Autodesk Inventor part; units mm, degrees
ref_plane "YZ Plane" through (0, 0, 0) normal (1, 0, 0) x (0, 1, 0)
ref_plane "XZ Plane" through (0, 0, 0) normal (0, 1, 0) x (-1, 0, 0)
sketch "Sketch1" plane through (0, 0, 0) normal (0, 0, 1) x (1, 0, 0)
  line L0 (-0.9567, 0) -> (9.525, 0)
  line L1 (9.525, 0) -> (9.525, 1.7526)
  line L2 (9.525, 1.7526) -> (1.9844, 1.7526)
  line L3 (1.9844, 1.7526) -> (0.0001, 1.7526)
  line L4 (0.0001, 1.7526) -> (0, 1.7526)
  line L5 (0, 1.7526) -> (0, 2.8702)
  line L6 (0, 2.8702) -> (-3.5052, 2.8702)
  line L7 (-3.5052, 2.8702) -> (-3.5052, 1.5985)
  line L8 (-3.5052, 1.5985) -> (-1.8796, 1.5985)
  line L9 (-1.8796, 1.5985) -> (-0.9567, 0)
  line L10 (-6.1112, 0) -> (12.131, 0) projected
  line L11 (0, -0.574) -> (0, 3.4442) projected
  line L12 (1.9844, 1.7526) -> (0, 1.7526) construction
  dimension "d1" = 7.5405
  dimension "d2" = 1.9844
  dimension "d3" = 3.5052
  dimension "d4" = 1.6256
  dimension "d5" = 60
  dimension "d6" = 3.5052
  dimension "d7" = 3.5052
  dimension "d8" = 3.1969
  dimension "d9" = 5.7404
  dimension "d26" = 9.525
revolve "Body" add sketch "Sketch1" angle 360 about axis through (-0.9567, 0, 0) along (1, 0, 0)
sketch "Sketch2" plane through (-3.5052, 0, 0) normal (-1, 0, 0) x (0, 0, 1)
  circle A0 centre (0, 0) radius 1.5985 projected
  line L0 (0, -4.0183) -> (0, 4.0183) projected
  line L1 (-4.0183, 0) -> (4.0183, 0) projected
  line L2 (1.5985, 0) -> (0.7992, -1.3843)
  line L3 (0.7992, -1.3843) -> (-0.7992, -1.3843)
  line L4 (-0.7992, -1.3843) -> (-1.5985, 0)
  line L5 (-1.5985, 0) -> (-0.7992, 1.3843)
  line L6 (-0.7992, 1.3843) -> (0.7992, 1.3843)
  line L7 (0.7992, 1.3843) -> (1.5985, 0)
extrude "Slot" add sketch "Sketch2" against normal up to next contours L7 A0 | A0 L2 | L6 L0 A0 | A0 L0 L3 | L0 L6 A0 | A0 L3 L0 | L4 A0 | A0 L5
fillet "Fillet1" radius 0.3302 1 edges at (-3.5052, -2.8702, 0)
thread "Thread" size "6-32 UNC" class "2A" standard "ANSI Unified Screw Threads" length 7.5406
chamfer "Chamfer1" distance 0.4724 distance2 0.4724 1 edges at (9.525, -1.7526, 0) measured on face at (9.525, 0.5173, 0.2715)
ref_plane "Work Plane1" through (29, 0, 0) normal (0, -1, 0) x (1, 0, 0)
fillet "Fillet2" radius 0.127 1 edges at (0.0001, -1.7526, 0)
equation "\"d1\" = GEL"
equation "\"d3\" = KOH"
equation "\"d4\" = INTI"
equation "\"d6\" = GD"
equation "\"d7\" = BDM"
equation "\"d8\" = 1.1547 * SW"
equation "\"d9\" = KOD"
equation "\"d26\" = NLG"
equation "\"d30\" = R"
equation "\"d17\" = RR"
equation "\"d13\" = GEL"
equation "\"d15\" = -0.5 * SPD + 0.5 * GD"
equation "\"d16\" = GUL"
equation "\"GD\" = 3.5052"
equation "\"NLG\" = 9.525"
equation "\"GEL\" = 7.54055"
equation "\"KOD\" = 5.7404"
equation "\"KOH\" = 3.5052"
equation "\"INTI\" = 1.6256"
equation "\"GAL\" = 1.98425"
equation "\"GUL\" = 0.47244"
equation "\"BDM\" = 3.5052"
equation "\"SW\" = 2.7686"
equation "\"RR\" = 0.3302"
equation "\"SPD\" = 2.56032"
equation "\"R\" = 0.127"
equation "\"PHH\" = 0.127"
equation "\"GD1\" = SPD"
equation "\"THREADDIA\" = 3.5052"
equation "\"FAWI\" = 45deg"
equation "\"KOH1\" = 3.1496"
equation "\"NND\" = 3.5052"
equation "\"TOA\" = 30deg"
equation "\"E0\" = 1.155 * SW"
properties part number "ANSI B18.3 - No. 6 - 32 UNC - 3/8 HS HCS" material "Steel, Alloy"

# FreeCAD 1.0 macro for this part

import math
import FreeCAD as App
import Part
import Sketcher

V = App.Vector
Q = App.Units.Quantity


def edges_at(feature, points):
    """Names of the edges that pass closest to the given points."""
    edges = feature.Shape.Edges
    near = lambda p: min(range(len(edges)), key=lambda i: edges[i].distToShape(Part.Vertex(*p))[0])
    return sorted({f"Edge{near(p) + 1}" for p in points})


def add_polygon(sketch, points):
    """Adds a closed chain of lines whose ends are joined by coincident constraints."""
    first, n = sketch.GeometryCount, len(points)
    for a, b in zip(points, points[1:] + points[:1]):
        sketch.addGeometry(Part.LineSegment(App.Vector(*a, 0), App.Vector(*b, 0)), False)
    for i in range(n):
        sketch.addConstraint(Sketcher.Constraint("Coincident", first + i, 2, first + (i + 1) % n, 1))

doc = App.newDocument("Part")
params = doc.addObject("Spreadsheet::Sheet", "Params")
for row, (alias, value) in enumerate([
    ("sketch1_width", "0.375 in"),
    ("sketch1_width2", "0.138 in"),
    ("sketch1_width3", "0.064 in"),
    ("sketch1_height", "0.069 in"),
    ("sketch1_height2", "0.044 in"),
    ("revolution_angle", "360 deg"),
    ("pad1_length", "1.7493 mm"),
    ("fillet_radius", "0.013 in"),
    ("chamfer_size", "0.0185984 in"),
    ("chamfer_size2", "0.0185984 in"),
    ("fillet2_radius", "0.005 in"),
], start=1):
    params.set(f"A{row}", alias)
    params.set(f"B{row}", "=" + value)
    params.setAlias(f"B{row}", alias)

body = doc.addObject("PartDesign::Body", "Body")

sketch1 = body.newObject("Sketcher::SketchObject", "Sketch")
sketch1.AttachmentSupport = (doc.getObject("XY_Plane"), [""])
sketch1.MapMode = "FlatFace"
add_polygon(sketch1, [(-1.9, 1.6), (-1, 0), (9.5, 0), (9.5, 1.8), (0, 1.8), (0, 2.9), (-3.5, 2.9), (-3.5, 1.6)])
sketch1.addConstraint(Sketcher.Constraint("Horizontal", 1))
sketch1.addConstraint(Sketcher.Constraint("Vertical", 2))
sketch1.addConstraint(Sketcher.Constraint("Horizontal", 3))
sketch1.addConstraint(Sketcher.Constraint("Vertical", 4))
sketch1.addConstraint(Sketcher.Constraint("Horizontal", 5))
sketch1.addConstraint(Sketcher.Constraint("Vertical", 6))
sketch1.addConstraint(Sketcher.Constraint("Horizontal", 7))
sketch1.addConstraint(Sketcher.Constraint("PointOnObject", 0, 2, -1))
sketch1.addConstraint(Sketcher.Constraint("PointOnObject", 3, 2, -2))
sketch1.addConstraint(Sketcher.Constraint("Angle", 0, Q("-59.9998 deg")))
sketch1.addConstraint(Sketcher.Constraint("DistanceX", 3, 2, 3, 1, Q("0.375 in")))
sketch1.addConstraint(Sketcher.Constraint("DistanceX", 5, 2, 5, 1, Q("0.138 in")))
sketch1.addConstraint(Sketcher.Constraint("DistanceX", 7, 1, 7, 2, Q("0.064 in")))
sketch1.addConstraint(Sketcher.Constraint("DistanceY", 2, 1, 2, 2, Q("0.069 in")))
sketch1.addConstraint(Sketcher.Constraint("DistanceY", 4, 1, 4, 2, Q("0.044 in")))
sketch1.addConstraint(Sketcher.Constraint("DistanceX", 1, 1, 1, 2, 10.4817))
sketch1.setExpression("Constraints[18]", "Params.sketch1_width")
sketch1.setExpression("Constraints[19]", "Params.sketch1_width2")
sketch1.setExpression("Constraints[20]", "Params.sketch1_width3")
sketch1.setExpression("Constraints[21]", "Params.sketch1_height")
sketch1.setExpression("Constraints[22]", "Params.sketch1_height2")
revolution = body.newObject("PartDesign::Revolution", "Revolution")
revolution.Profile = sketch1
revolution.ReferenceAxis = (sketch1, ["H_Axis"])
revolution.setExpression("Angle", "Params.revolution_angle")

sketch2 = body.newObject("Sketcher::SketchObject", "Sketch001")
sketch2.AttachmentSupport = (doc.getObject("YZ_Plane"), [""])
sketch2.MapMode = "FlatFace"
sketch2.AttachmentOffset = App.Placement(V(0, 0, -0.138 * 25.4), App.Rotation())
sketch2.addGeometry(Part.LineSegment(V(1.4, 0.8, 0), V(0, 1.6, 0)), False)
sketch2.addGeometry(Part.ArcOfCircle(Part.Circle(V(0, 0, 0), V(0, 0, 1), 1.6), math.radians(30), math.radians(90)), False)
sketch2.addGeometry(Part.ArcOfCircle(Part.Circle(V(0, 0, 0), V(0, 0, 1), 1.6), math.radians(90), math.radians(150)), False)
sketch2.addGeometry(Part.LineSegment(V(0, 1.6, 0), V(-1.4, 0.8, 0)), False)
sketch2.addGeometry(Part.ArcOfCircle(Part.Circle(V(0, 0, 0), V(0, 0, 1), 1.6), math.radians(-30), math.radians(30)), False)
sketch2.addGeometry(Part.LineSegment(V(1.4, 0.8, 0), V(1.4, -0.8, 0)), False)
sketch2.addGeometry(Part.LineSegment(V(-1.4, 0.8, 0), V(-1.4, -0.8, 0)), False)
sketch2.addGeometry(Part.ArcOfCircle(Part.Circle(V(0, 0, 0), V(0, 0, 1), 1.6), math.radians(150), math.radians(210)), False)
sketch2.addGeometry(Part.LineSegment(V(-1.4, -0.8, 0), V(0, -1.6, 0)), False)
sketch2.addGeometry(Part.ArcOfCircle(Part.Circle(V(0, 0, 0), V(0, 0, 1), 1.6), math.radians(-150), math.radians(-90)), False)
sketch2.addGeometry(Part.ArcOfCircle(Part.Circle(V(0, 0, 0), V(0, 0, 1), 1.6), math.radians(-90), math.radians(-30)), False)
sketch2.addGeometry(Part.LineSegment(V(0, -1.6, 0), V(1.4, -0.8, 0)), False)
sketch2.addConstraint(Sketcher.Constraint("Coincident", 0, 1, 1, 1))
sketch2.addConstraint(Sketcher.Constraint("Coincident", 1, 2, 0, 2))
sketch2.addConstraint(Sketcher.Constraint("Coincident", 2, 1, 3, 1))
sketch2.addConstraint(Sketcher.Constraint("Coincident", 3, 2, 2, 2))
sketch2.addConstraint(Sketcher.Constraint("Coincident", 4, 1, 5, 2))
sketch2.addConstraint(Sketcher.Constraint("Coincident", 5, 1, 4, 2))
sketch2.addConstraint(Sketcher.Constraint("Coincident", 6, 1, 7, 1))
sketch2.addConstraint(Sketcher.Constraint("Coincident", 7, 2, 6, 2))
sketch2.addConstraint(Sketcher.Constraint("Coincident", 8, 1, 9, 1))
sketch2.addConstraint(Sketcher.Constraint("Coincident", 9, 2, 8, 2))
sketch2.addConstraint(Sketcher.Constraint("Coincident", 10, 1, 11, 1))
sketch2.addConstraint(Sketcher.Constraint("Coincident", 11, 2, 10, 2))
sketch2.addConstraint(Sketcher.Constraint("Vertical", 5))
sketch2.addConstraint(Sketcher.Constraint("Vertical", 6))
sketch2.addConstraint(Sketcher.Constraint("Coincident", 1, 3, -1, 1))
sketch2.addConstraint(Sketcher.Constraint("Coincident", 2, 3, -1, 1))
sketch2.addConstraint(Sketcher.Constraint("Coincident", 4, 3, -1, 1))
sketch2.addConstraint(Sketcher.Constraint("Coincident", 7, 3, -1, 1))
sketch2.addConstraint(Sketcher.Constraint("Coincident", 9, 3, -1, 1))
sketch2.addConstraint(Sketcher.Constraint("Coincident", 10, 3, -1, 1))
sketch2.addConstraint(Sketcher.Constraint("Coincident", 2, 1, 1, 2))
sketch2.addConstraint(Sketcher.Constraint("Coincident", 5, 1, 0, 1))
sketch2.addConstraint(Sketcher.Constraint("Coincident", 6, 1, 3, 2))
sketch2.addConstraint(Sketcher.Constraint("Coincident", 8, 1, 7, 2))
sketch2.addConstraint(Sketcher.Constraint("Coincident", 10, 1, 9, 2))
sketch2.addConstraint(Sketcher.Constraint("PointOnObject", 1, 2, -2))
sketch2.addConstraint(Sketcher.Constraint("PointOnObject", 9, 2, -2))
sketch2.addConstraint(Sketcher.Constraint("Parallel", 0, 8))
sketch2.addConstraint(Sketcher.Constraint("Parallel", 3, 11))
sketch2.addConstraint(Sketcher.Constraint("Radius", 1, 1.5985))
sketch2.addConstraint(Sketcher.Constraint("DistanceY", 5, 2, 5, 1, 1.5984))
pad1 = body.newObject("PartDesign::Pad", "Pad")
pad1.Profile = sketch2
pad1.setExpression("Length", "Params.pad1_length")
doc.recompute()

fillet = body.newObject("PartDesign::Fillet", "Fillet")
fillet.Base = (pad1, edges_at(pad1, [(-3.505, -2.87, 0)]))
fillet.setExpression("Radius", "Params.fillet_radius")
doc.recompute()

chamfer = body.newObject("PartDesign::Chamfer", "Chamfer")
chamfer.Base = (fillet, edges_at(fillet, [(9.525, -1.753, 0)]))
chamfer.ChamferType = "Two distances"
chamfer.setExpression("Size", "Params.chamfer_size")
chamfer.setExpression("Size2", "Params.chamfer_size2")
doc.recompute()

fillet2 = body.newObject("PartDesign::Fillet", "Fillet001")
fillet2.Base = (chamfer, edges_at(chamfer, [(0, -1.753, 0)]))
fillet2.setExpression("Radius", "Params.fillet2_radius")

doc.recompute()
